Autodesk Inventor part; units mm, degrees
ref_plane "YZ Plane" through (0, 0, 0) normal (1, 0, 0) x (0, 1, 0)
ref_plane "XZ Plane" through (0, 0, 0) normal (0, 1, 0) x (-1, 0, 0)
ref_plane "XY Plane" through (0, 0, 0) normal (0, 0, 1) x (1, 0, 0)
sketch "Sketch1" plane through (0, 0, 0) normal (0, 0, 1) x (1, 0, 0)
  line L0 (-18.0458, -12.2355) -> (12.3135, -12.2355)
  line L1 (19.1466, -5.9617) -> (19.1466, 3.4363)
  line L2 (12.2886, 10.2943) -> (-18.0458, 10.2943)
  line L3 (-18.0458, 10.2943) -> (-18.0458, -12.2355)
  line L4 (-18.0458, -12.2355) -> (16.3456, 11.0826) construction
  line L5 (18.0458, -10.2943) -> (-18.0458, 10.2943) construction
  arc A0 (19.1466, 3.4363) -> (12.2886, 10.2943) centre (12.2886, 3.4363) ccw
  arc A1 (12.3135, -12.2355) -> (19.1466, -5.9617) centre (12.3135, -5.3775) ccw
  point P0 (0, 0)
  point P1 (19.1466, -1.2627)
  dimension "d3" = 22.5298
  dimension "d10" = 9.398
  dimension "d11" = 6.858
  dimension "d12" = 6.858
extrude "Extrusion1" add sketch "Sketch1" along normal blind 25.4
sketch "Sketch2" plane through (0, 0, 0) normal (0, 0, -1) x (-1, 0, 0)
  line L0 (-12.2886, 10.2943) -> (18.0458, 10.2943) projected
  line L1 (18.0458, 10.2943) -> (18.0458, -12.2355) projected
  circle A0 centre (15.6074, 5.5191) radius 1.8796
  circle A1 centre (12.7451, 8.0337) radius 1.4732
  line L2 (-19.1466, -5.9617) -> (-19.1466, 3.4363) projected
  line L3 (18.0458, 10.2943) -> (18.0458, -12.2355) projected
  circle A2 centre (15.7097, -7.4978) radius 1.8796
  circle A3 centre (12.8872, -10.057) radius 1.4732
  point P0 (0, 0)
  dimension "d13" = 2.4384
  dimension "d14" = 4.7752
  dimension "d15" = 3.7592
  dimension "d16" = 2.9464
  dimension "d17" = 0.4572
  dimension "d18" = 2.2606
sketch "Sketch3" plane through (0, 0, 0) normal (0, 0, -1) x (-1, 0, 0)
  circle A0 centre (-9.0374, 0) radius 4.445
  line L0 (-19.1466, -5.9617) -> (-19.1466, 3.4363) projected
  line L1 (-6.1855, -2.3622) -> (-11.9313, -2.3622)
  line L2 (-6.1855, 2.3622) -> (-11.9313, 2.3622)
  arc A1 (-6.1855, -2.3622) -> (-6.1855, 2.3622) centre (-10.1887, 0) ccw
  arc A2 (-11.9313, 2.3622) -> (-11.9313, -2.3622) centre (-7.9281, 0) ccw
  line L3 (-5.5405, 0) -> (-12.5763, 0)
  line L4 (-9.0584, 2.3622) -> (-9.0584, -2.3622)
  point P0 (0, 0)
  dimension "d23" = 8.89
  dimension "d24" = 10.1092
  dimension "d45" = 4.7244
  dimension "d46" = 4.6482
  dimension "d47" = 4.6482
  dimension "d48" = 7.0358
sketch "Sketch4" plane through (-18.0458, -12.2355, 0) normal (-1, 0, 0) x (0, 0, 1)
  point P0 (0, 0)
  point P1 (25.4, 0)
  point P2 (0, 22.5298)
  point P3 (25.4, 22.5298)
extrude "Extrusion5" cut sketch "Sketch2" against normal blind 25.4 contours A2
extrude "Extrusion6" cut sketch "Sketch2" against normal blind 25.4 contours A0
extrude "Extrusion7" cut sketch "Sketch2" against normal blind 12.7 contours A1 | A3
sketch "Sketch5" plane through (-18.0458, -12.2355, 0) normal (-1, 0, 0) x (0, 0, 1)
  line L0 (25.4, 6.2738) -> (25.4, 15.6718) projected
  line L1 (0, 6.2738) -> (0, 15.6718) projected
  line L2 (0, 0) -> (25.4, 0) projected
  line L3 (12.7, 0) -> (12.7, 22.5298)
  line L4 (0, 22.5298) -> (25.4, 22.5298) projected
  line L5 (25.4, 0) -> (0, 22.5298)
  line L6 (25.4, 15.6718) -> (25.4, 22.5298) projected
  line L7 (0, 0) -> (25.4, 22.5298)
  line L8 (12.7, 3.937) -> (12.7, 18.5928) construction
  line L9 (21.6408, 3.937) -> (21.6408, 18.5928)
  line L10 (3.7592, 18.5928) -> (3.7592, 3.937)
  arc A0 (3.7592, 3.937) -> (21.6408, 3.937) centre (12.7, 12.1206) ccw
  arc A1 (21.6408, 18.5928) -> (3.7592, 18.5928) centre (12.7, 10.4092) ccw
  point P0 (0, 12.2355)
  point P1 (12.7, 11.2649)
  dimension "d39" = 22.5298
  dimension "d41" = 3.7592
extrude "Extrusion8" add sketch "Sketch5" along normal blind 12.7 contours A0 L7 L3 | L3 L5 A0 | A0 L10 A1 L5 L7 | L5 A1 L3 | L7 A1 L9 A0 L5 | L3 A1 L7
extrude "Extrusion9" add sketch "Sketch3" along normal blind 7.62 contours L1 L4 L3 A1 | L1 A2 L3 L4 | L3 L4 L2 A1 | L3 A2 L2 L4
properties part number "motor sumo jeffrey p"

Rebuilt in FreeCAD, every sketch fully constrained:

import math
import FreeCAD as App
import Part
import Sketcher
from FreeCAD import Vector
Q = App.Units.Quantity

doc = App.newDocument("Part")
body = doc.addObject("PartDesign::Body", "Body")

# Sketch on XY plane
sketch1 = body.newObject("Sketcher::SketchObject", "Sketch")
sketch1.AttachmentSupport = (doc.getObject("XY_Plane"), [""])
sketch1.MapMode = "FlatFace"
sketch1.addGeometry([
    Part.LineSegment(Vector(-18.0458, 10.2943, 0), Vector(-18.0458, -12.2355, 0)),  # 0
    Part.LineSegment(Vector(-18.0458, -12.2355, 0), Vector(12.3135, -12.2355, 0)),  # 1
    Part.ArcOfCircle(Part.Circle(Vector(12.3135, -5.3775, 0), Vector(0, 0, 1), 6.858), math.radians(-90), math.radians(-4.886654)),  # 2
    Part.LineSegment(Vector(19.1466, -5.9617, 0), Vector(19.1466, 3.4363, 0)),  # 3
    Part.ArcOfCircle(Part.Circle(Vector(12.2886, 3.4363, 0), Vector(0, 0, 1), 6.858), math.radians(0), math.radians(90)),  # 4
    Part.LineSegment(Vector(12.2886, 10.2943, 0), Vector(-18.0458, 10.2943, 0)),  # 5
], False)
sketch1.addConstraint([
    Sketcher.Constraint("Coincident", 0, 2, 1, 1),
    Sketcher.Constraint("Tangent", 1, 2, 2, 1),
    Sketcher.Constraint("Coincident", 2, 2, 3, 1),
    Sketcher.Constraint("Tangent", 3, 2, 4, 1),
    Sketcher.Constraint("Tangent", 4, 2, 5, 1),
    Sketcher.Constraint("Coincident", 5, 2, 0, 1),
    Sketcher.Constraint("Vertical", 0),
    Sketcher.Constraint("Horizontal", 1),
    Sketcher.Constraint("Vertical", 3),
    Sketcher.Constraint("Horizontal", 5),
    Sketcher.Constraint("Equal", 2, 4),
    Sketcher.Constraint("Radius", 2, Q("0.27 in")),
    Sketcher.Constraint("DistanceY", 3, 1, 3, 2, Q("0.37 in")),
    Sketcher.Constraint("DistanceY", 0, 2, 0, 1, Q("0.887 in")),
    Sketcher.Constraint("DistanceX", 1, 1, 1, 2, Q("30.3593 mm")),
    Sketcher.Constraint("DistanceX", -1, 1, 4, 3, Q("0.4838 in")),
    Sketcher.Constraint("DistanceY", 2, 3, -1, 1, Q("5.3775 mm")),
])
pad1 = body.newObject("PartDesign::Pad", "Pad")
pad1.Profile = sketch1
pad1.Length = Q("1 in")

# Sketch on XY plane
sketch2 = body.newObject("Sketcher::SketchObject", "Sketch001")
sketch2.AttachmentSupport = (doc.getObject("XY_Plane"), [""])
sketch2.MapMode = "FlatFace"
sketch2.addGeometry(Part.Circle(Vector(-15.7097, -7.4978, 0), Vector(0, 0, 1), 1.8796), False)
sketch2.addConstraint([
    Sketcher.Constraint("Diameter", 0, Q("0.148 in")),
    Sketcher.Constraint("DistanceX", 0, 3, -1, 1, Q("0.6185 in")),
    Sketcher.Constraint("DistanceY", 0, 3, -1, 1, Q("0.2952 in")),
])
pocket1 = body.newObject("PartDesign::Pocket", "Pocket")
pocket1.Profile = sketch2
pocket1.Length = Q("1 in")
pocket1.Reversed = True

# Sketch on XY plane
sketch3 = body.newObject("Sketcher::SketchObject", "Sketch002")
sketch3.AttachmentSupport = (doc.getObject("XY_Plane"), [""])
sketch3.MapMode = "FlatFace"
sketch3.addGeometry(Part.Circle(Vector(-15.6074, 5.5191, 0), Vector(0, 0, 1), 1.8796), False)
sketch3.addConstraint([
    Sketcher.Constraint("Diameter", 0, Q("0.148 in")),
    Sketcher.Constraint("DistanceX", 0, 3, -1, 1, Q("15.6074 mm")),
    Sketcher.Constraint("DistanceY", -1, 1, 0, 3, Q("5.519 mm")),
])
pocket2 = body.newObject("PartDesign::Pocket", "Pocket001")
pocket2.Profile = sketch3
pocket2.Length = Q("1 in")
pocket2.Reversed = True

# Sketch on XY plane
sketch4 = body.newObject("Sketcher::SketchObject", "Sketch003")
sketch4.AttachmentSupport = (doc.getObject("XY_Plane"), [""])
sketch4.MapMode = "FlatFace"
sketch4.addGeometry([
    Part.Circle(Vector(-12.7451, 8.0337, 0), Vector(0, 0, 1), 1.4732),
    Part.Circle(Vector(-12.8872, -10.057, 0), Vector(0, 0, 1), 1.4732),
], False)
sketch4.addConstraint([
    Sketcher.Constraint("Equal", 0, 1),
    Sketcher.Constraint("Diameter", 0, Q("0.116 in")),
    Sketcher.Constraint("DistanceX", 1, 3, 0, 3, Q("0.0056 in")),
    Sketcher.Constraint("DistanceX", 0, 3, -1, 1, Q("12.745 mm")),
    Sketcher.Constraint("DistanceY", -1, 1, 0, 3, Q("8.0337 mm")),
    Sketcher.Constraint("DistanceY", 1, 3, -1, 1, Q("10.057 mm")),
])
pocket3 = body.newObject("PartDesign::Pocket", "Pocket002")
pocket3.Profile = sketch4
pocket3.Length = Q("0.5 in")
pocket3.Reversed = True

# Sketch on YZ plane
sketch5 = body.newObject("Sketcher::SketchObject", "Sketch004")
sketch5.AttachmentSupport = (doc.getObject("YZ_Plane"), [""])
sketch5.MapMode = "FlatFace"
sketch5.AttachmentOffset = App.Placement(Vector(0, 0, -18.0458), App.Rotation())
sketch5.addGeometry([
    Part.LineSegment(Vector(-8.2985, 21.6408, 0), Vector(6.3573, 21.6408, 0)),
    Part.ArcOfCircle(Part.Circle(Vector(-1.8263, 12.7, 0), Vector(0, 0, 1), 12.120611), math.radians(-47.531833), math.radians(47.531833)),
    Part.LineSegment(Vector(6.3573, 3.7592, 0), Vector(-8.2985, 3.7592, 0)),
    Part.ArcOfCircle(Part.Circle(Vector(-0.1149, 12.7, 0), Vector(0, 0, 1), 12.120611), math.radians(132.468167), math.radians(227.531833)),
], False)
sketch5.addConstraint([
    Sketcher.Constraint("Coincident", 0, 2, 1, 2),
    Sketcher.Constraint("Coincident", 1, 1, 2, 1),
    Sketcher.Constraint("Coincident", 2, 2, 3, 2),
    Sketcher.Constraint("Coincident", 3, 1, 0, 1),
    Sketcher.Constraint("Horizontal", 0),
    Sketcher.Constraint("Horizontal", 2),
    Sketcher.Constraint("Equal", 1, 3),
    Sketcher.Constraint("Horizontal", 1, 3, 3, 3),
    Sketcher.Constraint("Vertical", 0, 2, 1, 1),
    Sketcher.Constraint("DistanceY", -1, 1, 1, 1, Q("0.148 in")),
    Sketcher.Constraint("DistanceY", -1, 1, 1, 3, Q("0.5 in")),
    Sketcher.Constraint("Radius", 1, Q("0.4772 in")),
    Sketcher.Constraint("DistanceX", 0, 1, 0, 2, Q("0.577 in")),
    Sketcher.Constraint("DistanceX", 1, 3, -1, 1, Q("0.0719 in")),
])
pad2 = body.newObject("PartDesign::Pad", "Pad001")
pad2.Profile = sketch5
pad2.Length = Q("0.5 in")
pad2.Reversed = True

# Sketch on XY plane
sketch6 = body.newObject("Sketcher::SketchObject", "Sketch005")
sketch6.AttachmentSupport = (doc.getObject("XY_Plane"), [""])
sketch6.MapMode = "FlatFace"
sketch6.addGeometry([
    Part.ArcOfCircle(Part.Circle(Vector(10.1887, 0, 0), Vector(0, 0, 1), 4.648182), math.radians(149.456083), math.radians(210.543917)),
    Part.LineSegment(Vector(6.1855, 2.3622, 0), Vector(11.9313, 2.3622, 0)),
    Part.ArcOfCircle(Part.Circle(Vector(7.9281, 0, 0), Vector(0, 0, 1), 4.648182), math.radians(-30.543917), math.radians(30.543917)),
    Part.LineSegment(Vector(11.9313, -2.3622, 0), Vector(6.1855, -2.3622, 0)),
], False)
sketch6.addConstraint([
    Sketcher.Constraint("Coincident", 0, 1, 1, 1),
    Sketcher.Constraint("Coincident", 1, 2, 2, 2),
    Sketcher.Constraint("Coincident", 2, 1, 3, 1),
    Sketcher.Constraint("Coincident", 3, 2, 0, 2),
    Sketcher.Constraint("Horizontal", 1),
    Sketcher.Constraint("Horizontal", 3),
    Sketcher.Constraint("Equal", 0, 2),
    Sketcher.Constraint("Symmetric", 1, 2, 2, 1, -1),
    Sketcher.Constraint("PointOnObject", 0, 3, -1),
    Sketcher.Constraint("Radius", 0, Q("0.183 in")),
    Sketcher.Constraint("DistanceY", 2, 1, 1, 2, Q("0.186 in")),
    Sketcher.Constraint("DistanceX", 2, 3, 0, 3, Q("0.089 in")),
    Sketcher.Constraint("DistanceX", -1, 1, 0, 3, Q("10.1887 mm")),
])
pad3 = body.newObject("PartDesign::Pad", "Pad002")
pad3.Profile = sketch6
pad3.Length = Q("0.3 in")
pad3.Reversed = True

doc.recompute()
